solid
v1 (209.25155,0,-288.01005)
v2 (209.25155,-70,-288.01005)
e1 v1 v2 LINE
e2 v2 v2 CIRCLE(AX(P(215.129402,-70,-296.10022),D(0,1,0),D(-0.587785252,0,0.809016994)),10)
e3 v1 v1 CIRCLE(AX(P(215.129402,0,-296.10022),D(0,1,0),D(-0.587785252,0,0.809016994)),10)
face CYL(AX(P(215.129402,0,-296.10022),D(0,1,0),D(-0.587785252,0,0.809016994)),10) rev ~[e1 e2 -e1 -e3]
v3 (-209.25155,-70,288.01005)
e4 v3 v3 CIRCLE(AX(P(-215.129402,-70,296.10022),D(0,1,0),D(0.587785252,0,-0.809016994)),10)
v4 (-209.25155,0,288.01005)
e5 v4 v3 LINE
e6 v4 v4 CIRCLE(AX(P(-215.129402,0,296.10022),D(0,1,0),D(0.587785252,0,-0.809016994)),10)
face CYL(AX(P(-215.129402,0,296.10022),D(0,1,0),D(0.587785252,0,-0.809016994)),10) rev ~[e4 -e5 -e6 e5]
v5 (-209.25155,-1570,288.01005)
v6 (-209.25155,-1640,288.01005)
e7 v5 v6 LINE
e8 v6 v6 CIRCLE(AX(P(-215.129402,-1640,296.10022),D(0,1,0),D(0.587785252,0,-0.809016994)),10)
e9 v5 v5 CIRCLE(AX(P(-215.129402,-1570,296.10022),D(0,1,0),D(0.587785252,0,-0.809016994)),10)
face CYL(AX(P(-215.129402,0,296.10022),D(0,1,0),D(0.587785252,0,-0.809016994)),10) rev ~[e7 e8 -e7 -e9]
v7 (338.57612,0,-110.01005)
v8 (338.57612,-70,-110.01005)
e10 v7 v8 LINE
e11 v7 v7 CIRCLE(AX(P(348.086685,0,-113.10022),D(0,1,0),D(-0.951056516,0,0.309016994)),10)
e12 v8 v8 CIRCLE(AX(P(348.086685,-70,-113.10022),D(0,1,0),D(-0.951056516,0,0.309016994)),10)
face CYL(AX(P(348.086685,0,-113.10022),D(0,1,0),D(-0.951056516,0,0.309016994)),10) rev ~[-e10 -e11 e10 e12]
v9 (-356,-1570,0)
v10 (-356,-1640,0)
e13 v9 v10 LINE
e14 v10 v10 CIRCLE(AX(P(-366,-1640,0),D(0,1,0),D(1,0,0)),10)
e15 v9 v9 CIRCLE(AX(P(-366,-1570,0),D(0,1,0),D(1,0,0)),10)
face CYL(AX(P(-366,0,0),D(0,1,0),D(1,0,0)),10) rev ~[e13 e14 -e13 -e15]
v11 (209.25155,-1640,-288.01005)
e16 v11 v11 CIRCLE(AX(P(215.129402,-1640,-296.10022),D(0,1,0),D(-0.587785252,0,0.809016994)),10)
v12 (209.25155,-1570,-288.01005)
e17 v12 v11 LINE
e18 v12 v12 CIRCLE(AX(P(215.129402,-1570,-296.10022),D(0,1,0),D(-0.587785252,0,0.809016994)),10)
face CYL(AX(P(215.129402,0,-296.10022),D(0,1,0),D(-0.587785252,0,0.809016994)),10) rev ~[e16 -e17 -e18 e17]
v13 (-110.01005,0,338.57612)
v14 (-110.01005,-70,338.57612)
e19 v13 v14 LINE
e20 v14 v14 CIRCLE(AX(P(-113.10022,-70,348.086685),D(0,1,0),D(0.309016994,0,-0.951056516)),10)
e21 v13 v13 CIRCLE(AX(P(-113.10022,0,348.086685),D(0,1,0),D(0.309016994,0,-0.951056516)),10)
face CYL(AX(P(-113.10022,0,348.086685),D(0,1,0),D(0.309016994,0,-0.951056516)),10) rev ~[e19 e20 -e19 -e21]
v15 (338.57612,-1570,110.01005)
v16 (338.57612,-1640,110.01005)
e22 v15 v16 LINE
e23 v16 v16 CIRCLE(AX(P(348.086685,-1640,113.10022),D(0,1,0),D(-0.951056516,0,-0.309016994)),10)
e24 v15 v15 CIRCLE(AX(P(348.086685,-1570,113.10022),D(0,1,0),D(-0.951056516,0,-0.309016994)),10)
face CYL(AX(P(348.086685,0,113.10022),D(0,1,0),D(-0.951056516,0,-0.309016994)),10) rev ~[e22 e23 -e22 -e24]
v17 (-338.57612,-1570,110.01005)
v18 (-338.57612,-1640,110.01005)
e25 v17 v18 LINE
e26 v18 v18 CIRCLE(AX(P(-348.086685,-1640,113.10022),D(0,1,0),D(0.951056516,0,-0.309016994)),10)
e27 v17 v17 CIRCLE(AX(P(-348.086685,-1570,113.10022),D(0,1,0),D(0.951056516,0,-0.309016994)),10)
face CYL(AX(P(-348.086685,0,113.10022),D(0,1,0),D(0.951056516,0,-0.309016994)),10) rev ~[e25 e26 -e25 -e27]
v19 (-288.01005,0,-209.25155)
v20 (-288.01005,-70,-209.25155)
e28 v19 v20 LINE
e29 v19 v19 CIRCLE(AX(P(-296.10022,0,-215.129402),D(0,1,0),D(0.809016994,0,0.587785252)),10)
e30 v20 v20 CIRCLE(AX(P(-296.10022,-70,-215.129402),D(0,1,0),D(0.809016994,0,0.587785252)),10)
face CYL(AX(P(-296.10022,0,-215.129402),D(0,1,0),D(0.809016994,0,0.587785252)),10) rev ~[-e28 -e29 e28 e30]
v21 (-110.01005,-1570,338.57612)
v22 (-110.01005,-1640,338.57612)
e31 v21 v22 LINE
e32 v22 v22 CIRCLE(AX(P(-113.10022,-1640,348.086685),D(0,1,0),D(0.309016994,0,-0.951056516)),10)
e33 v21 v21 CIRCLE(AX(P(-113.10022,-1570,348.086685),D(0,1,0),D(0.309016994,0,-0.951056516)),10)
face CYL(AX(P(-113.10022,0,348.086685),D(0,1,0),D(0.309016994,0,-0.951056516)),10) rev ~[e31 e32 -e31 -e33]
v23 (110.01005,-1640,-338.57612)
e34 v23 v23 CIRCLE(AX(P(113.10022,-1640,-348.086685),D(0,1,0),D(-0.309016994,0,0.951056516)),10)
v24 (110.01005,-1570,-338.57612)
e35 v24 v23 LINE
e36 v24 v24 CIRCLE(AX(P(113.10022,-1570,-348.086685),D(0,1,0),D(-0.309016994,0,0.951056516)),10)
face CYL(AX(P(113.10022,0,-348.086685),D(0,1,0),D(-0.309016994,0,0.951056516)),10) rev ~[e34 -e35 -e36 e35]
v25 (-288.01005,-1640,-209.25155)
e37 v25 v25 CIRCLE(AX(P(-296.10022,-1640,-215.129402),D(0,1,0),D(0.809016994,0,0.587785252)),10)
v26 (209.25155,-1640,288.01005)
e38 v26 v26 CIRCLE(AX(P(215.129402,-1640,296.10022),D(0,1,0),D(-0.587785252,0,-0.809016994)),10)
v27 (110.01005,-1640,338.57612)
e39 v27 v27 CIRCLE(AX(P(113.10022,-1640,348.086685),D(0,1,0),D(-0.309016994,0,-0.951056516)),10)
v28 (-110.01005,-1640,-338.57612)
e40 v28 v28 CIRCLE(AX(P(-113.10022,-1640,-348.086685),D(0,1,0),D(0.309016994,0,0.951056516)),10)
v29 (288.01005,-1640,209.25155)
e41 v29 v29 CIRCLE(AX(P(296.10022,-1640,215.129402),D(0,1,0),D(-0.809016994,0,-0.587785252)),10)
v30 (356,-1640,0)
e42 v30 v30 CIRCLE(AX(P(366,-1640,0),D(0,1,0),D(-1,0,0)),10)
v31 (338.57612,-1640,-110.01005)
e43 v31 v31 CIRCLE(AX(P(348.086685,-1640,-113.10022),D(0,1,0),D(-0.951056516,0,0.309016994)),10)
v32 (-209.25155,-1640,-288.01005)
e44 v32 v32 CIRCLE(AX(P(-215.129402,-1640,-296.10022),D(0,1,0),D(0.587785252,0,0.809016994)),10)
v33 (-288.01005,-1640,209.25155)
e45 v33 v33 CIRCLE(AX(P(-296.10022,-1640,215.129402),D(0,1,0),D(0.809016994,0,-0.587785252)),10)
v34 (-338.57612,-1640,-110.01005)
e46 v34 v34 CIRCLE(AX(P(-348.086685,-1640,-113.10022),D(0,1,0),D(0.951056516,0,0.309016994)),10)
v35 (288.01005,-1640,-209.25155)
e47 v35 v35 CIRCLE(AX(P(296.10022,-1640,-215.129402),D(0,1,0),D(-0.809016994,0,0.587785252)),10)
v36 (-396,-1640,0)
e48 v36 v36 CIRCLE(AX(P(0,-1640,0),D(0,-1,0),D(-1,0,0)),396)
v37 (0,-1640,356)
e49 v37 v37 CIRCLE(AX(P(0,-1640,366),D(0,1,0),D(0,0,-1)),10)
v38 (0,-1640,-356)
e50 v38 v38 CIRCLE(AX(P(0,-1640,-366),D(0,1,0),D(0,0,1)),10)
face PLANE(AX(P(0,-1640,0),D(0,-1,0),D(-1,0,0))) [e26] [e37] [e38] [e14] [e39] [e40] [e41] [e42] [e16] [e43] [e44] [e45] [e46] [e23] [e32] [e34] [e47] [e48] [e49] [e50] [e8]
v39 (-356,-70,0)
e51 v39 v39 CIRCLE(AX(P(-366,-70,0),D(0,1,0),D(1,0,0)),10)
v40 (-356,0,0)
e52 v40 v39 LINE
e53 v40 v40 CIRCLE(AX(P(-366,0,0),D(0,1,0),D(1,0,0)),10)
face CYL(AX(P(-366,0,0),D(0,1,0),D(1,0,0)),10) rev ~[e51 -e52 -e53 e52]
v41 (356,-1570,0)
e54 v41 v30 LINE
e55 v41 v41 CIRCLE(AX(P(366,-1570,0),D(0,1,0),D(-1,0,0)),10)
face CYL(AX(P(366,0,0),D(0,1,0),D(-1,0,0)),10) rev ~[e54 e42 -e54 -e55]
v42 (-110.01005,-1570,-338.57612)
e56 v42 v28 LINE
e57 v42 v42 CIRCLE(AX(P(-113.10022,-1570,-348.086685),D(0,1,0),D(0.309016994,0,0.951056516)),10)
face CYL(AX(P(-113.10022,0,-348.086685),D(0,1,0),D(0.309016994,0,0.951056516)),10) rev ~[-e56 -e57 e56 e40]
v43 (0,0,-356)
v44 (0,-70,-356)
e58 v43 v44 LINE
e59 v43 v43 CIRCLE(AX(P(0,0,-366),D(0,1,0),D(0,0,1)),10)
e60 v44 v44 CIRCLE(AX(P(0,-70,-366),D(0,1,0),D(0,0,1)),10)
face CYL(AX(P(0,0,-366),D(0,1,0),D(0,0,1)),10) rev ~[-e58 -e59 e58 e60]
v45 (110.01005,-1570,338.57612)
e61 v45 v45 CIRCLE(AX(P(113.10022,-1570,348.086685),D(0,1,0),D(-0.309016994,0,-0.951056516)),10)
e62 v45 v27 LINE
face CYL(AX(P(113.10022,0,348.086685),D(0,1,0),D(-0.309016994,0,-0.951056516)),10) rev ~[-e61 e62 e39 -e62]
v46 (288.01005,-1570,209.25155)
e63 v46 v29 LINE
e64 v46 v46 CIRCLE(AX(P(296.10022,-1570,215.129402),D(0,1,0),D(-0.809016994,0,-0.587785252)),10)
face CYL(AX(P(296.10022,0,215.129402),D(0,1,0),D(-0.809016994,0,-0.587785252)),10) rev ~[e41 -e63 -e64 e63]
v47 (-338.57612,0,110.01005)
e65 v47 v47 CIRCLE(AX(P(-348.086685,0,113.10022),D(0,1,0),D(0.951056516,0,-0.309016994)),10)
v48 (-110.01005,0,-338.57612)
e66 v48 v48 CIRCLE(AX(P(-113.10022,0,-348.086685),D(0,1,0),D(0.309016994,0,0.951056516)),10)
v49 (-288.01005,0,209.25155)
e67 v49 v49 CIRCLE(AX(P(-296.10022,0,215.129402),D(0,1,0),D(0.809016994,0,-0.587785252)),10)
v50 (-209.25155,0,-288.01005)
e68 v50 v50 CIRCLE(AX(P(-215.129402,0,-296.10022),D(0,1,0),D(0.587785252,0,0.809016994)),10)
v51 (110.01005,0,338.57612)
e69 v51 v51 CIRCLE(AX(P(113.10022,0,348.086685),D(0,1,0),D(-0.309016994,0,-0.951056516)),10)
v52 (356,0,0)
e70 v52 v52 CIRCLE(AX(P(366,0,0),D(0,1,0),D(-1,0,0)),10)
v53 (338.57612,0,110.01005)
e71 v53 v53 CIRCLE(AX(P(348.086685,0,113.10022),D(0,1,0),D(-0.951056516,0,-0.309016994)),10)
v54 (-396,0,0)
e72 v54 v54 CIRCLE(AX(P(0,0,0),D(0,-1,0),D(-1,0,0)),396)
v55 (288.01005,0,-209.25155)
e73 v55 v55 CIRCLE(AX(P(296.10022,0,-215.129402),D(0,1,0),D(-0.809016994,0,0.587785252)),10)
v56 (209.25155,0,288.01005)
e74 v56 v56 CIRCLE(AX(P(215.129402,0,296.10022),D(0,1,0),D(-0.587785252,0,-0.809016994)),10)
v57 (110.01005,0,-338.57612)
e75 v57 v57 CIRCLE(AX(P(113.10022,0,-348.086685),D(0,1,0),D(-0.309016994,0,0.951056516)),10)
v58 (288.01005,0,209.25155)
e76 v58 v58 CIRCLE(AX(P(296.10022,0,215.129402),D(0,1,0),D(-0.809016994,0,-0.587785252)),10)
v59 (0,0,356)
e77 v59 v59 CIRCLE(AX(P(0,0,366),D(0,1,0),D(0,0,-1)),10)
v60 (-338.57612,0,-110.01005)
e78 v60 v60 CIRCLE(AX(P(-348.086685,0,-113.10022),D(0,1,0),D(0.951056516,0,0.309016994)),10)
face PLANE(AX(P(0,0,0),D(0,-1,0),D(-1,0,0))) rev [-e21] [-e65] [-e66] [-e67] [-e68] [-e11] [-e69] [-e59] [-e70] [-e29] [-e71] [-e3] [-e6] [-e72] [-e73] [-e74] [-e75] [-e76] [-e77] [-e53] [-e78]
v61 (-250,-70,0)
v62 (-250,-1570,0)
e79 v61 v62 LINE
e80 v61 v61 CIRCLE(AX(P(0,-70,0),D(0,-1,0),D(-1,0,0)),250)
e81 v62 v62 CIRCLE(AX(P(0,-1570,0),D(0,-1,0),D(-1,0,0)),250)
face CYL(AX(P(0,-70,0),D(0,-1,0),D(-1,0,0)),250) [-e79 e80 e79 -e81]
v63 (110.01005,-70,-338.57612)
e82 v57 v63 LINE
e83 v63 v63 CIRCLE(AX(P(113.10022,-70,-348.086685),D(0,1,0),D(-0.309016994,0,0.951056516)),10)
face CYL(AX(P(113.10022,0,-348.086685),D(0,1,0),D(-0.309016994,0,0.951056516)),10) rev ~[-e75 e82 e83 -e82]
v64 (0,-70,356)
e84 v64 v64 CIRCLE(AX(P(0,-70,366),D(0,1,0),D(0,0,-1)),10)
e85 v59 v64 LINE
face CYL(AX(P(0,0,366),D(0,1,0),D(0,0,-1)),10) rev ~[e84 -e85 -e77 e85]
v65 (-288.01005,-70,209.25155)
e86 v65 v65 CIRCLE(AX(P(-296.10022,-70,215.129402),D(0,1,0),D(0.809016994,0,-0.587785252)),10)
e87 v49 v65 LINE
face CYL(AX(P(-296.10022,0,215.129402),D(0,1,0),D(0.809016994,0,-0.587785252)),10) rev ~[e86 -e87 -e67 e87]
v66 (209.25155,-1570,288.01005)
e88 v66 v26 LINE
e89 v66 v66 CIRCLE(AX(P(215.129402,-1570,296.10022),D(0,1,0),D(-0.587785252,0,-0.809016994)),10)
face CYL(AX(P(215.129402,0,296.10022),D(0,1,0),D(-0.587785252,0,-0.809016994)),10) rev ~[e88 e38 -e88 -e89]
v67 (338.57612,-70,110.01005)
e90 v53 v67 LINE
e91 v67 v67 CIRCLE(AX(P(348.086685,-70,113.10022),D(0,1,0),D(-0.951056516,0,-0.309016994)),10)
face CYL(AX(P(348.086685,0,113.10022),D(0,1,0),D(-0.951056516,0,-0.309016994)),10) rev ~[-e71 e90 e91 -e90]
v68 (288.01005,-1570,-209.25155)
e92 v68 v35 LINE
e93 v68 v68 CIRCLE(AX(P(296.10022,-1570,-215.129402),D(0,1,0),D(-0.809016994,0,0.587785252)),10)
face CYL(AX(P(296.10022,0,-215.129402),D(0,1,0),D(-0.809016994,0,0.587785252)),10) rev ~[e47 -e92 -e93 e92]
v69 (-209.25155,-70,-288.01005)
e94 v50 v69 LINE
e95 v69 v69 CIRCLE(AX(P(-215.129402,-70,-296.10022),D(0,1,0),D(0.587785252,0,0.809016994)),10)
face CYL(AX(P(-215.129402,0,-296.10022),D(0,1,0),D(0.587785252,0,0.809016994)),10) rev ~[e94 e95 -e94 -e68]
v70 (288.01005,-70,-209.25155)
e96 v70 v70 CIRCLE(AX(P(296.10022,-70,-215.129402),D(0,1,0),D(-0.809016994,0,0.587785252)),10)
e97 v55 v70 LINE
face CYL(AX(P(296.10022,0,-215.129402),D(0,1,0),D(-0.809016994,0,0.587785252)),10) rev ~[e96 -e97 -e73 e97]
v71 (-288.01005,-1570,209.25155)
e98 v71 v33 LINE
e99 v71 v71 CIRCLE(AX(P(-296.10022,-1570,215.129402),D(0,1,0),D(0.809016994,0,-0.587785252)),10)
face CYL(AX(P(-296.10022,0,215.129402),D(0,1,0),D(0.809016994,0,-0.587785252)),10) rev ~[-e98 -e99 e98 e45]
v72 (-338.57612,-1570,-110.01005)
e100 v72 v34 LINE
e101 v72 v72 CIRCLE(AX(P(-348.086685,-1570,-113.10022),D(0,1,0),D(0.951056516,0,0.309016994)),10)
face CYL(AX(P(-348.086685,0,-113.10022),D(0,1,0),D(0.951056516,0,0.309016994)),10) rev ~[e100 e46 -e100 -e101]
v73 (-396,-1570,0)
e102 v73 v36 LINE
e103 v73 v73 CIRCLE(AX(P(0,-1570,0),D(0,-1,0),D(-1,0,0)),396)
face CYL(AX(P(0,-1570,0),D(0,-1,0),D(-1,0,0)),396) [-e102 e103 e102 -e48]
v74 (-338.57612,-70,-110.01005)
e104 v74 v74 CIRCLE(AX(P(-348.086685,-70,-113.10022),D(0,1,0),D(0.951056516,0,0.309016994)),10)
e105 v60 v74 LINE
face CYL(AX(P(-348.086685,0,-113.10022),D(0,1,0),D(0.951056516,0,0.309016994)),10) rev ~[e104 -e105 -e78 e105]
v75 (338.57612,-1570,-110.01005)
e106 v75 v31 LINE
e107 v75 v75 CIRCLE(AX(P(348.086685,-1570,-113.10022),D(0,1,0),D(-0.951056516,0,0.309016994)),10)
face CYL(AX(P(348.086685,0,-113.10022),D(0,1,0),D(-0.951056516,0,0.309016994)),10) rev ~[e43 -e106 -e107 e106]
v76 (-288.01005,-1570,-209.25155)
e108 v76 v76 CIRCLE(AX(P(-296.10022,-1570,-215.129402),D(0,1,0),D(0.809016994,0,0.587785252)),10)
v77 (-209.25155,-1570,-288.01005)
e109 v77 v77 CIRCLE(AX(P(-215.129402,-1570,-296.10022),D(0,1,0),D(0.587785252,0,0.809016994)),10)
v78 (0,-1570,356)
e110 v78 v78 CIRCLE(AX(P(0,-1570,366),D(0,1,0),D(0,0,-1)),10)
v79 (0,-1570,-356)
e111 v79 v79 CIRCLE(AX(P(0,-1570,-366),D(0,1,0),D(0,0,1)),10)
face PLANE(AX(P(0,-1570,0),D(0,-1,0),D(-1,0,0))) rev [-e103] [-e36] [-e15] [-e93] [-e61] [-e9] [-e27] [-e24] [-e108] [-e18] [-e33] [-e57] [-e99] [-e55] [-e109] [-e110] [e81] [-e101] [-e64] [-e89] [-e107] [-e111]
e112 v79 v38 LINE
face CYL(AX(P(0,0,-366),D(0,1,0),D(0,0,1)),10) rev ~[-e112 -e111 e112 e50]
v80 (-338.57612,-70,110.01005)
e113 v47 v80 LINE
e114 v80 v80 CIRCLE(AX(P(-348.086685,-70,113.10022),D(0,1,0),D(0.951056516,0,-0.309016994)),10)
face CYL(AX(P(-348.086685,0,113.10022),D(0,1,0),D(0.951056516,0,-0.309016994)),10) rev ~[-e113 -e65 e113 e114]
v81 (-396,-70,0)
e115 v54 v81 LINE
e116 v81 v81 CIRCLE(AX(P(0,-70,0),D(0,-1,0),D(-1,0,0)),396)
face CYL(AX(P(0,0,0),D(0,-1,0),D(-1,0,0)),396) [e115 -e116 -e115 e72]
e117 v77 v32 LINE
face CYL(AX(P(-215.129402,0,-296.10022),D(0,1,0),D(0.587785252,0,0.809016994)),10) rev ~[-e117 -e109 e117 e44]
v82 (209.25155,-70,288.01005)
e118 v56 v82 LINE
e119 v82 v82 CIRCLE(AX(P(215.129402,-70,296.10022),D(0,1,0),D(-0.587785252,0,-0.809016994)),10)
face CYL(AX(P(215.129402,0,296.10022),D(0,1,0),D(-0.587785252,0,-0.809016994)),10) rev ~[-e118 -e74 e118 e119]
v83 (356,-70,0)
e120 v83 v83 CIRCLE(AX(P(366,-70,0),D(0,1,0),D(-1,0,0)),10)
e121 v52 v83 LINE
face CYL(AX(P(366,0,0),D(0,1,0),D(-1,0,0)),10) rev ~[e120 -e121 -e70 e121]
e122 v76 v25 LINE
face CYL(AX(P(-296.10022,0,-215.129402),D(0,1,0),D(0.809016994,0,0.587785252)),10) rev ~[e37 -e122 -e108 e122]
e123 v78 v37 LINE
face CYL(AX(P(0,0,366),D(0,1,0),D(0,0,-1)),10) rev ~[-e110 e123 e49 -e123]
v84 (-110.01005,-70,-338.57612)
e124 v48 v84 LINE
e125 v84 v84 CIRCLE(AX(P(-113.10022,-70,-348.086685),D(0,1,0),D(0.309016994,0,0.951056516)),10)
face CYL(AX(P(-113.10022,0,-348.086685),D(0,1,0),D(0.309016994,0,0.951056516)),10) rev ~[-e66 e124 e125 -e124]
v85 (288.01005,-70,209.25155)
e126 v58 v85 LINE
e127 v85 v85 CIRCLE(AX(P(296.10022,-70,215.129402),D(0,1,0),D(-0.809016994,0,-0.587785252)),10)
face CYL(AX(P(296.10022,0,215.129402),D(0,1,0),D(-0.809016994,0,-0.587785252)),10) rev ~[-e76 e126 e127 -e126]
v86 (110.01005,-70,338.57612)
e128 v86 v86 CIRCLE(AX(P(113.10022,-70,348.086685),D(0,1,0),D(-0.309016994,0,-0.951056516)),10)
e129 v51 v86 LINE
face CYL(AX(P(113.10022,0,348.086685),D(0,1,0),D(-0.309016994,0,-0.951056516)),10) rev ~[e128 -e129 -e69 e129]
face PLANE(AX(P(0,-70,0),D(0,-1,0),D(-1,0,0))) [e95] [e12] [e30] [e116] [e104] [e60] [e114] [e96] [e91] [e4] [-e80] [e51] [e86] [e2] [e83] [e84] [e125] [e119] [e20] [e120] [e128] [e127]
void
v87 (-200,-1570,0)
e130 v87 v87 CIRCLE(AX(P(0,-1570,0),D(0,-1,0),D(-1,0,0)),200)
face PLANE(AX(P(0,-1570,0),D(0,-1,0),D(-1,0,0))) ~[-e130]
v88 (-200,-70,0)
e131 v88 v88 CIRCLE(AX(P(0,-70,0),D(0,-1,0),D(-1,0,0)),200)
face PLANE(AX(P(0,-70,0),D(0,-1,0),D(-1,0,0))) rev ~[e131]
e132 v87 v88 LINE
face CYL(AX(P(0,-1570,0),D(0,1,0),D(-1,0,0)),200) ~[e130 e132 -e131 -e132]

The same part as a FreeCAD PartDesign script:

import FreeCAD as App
import Part
import Sketcher

doc = App.newDocument("Part")
body = doc.addObject("PartDesign::Body", "Body")

sketch1 = body.newObject("Sketcher::SketchObject", "Sketch")
sketch1.AttachmentSupport = (doc.getObject("XY_Plane"), [""])
sketch1.MapMode = "FlatFace"
sketch1.addGeometry(Part.LineSegment(App.Vector(396, 0, 0), App.Vector(0, 0, 0)), False)
sketch1.addGeometry(Part.LineSegment(App.Vector(0, 0, 0), App.Vector(0, -70, 0)), False)
sketch1.addGeometry(Part.LineSegment(App.Vector(0, -70, 0), App.Vector(200, -70, 0)), False)
sketch1.addGeometry(Part.LineSegment(App.Vector(200, -70, 0), App.Vector(200, -1570, 0)), False)
sketch1.addGeometry(Part.LineSegment(App.Vector(200, -1570, 0), App.Vector(0, -1570, 0)), False)
sketch1.addGeometry(Part.LineSegment(App.Vector(0, -1570, 0), App.Vector(0, -1640, 0)), False)
sketch1.addGeometry(Part.LineSegment(App.Vector(0, -1640, 0), App.Vector(396, -1640, 0)), False)
sketch1.addGeometry(Part.LineSegment(App.Vector(396, -1640, 0), App.Vector(396, -1570, 0)), False)
sketch1.addGeometry(Part.LineSegment(App.Vector(396, -1570, 0), App.Vector(250, -1570, 0)), False)
sketch1.addGeometry(Part.LineSegment(App.Vector(250, -1570, 0), App.Vector(250, -70, 0)), False)
sketch1.addGeometry(Part.LineSegment(App.Vector(250, -70, 0), App.Vector(396, -70, 0)), False)
sketch1.addGeometry(Part.LineSegment(App.Vector(396, -70, 0), App.Vector(396, 0, 0)), False)
sketch1.addConstraint(Sketcher.Constraint("Coincident", 0, 2, 1, 1))
sketch1.addConstraint(Sketcher.Constraint("Coincident", 1, 2, 2, 1))
sketch1.addConstraint(Sketcher.Constraint("Coincident", 2, 2, 3, 1))
sketch1.addConstraint(Sketcher.Constraint("Coincident", 3, 2, 4, 1))
sketch1.addConstraint(Sketcher.Constraint("Coincident", 4, 2, 5, 1))
sketch1.addConstraint(Sketcher.Constraint("Coincident", 5, 2, 6, 1))
sketch1.addConstraint(Sketcher.Constraint("Coincident", 6, 2, 7, 1))
sketch1.addConstraint(Sketcher.Constraint("Coincident", 7, 2, 8, 1))
sketch1.addConstraint(Sketcher.Constraint("Coincident", 8, 2, 9, 1))
sketch1.addConstraint(Sketcher.Constraint("Coincident", 9, 2, 10, 1))
sketch1.addConstraint(Sketcher.Constraint("Coincident", 10, 2, 11, 1))
sketch1.addConstraint(Sketcher.Constraint("Coincident", 11, 2, 0, 1))
sketch1.addConstraint(Sketcher.Constraint("Horizontal", 0))
sketch1.addConstraint(Sketcher.Constraint("Vertical", 1))
sketch1.addConstraint(Sketcher.Constraint("Horizontal", 2))
sketch1.addConstraint(Sketcher.Constraint("Vertical", 3))
sketch1.addConstraint(Sketcher.Constraint("Horizontal", 4))
sketch1.addConstraint(Sketcher.Constraint("Vertical", 5))
sketch1.addConstraint(Sketcher.Constraint("Horizontal", 6))
sketch1.addConstraint(Sketcher.Constraint("Vertical", 7))
sketch1.addConstraint(Sketcher.Constraint("Horizontal", 8))
sketch1.addConstraint(Sketcher.Constraint("Vertical", 9))
sketch1.addConstraint(Sketcher.Constraint("Horizontal", 10))
sketch1.addConstraint(Sketcher.Constraint("Vertical", 11))
sketch1.addConstraint(Sketcher.Constraint("Coincident", 0, 2, -1, 1))
sketch1.addConstraint(Sketcher.Constraint("PointOnObject", 4, 2, -2))
sketch1.addConstraint(Sketcher.Constraint("Horizontal", 4, 2, 7, 2))
sketch1.addConstraint(Sketcher.Constraint("Horizontal", 2, 2, 9, 2))
sketch1.addConstraint(Sketcher.Constraint("Vertical", 7, 2, 10, 2))
sketch1.addConstraint(Sketcher.Constraint("Equal", 1, 5))
sketch1.addConstraint(Sketcher.Constraint("DistanceX", 0, 2, 0, 1, 396.0))
sketch1.addConstraint(Sketcher.Constraint("DistanceX", 2, 1, 2, 2, 200.0))
sketch1.addConstraint(Sketcher.Constraint("DistanceX", 8, 2, 8, 1, 146.0))
sketch1.addConstraint(Sketcher.Constraint("DistanceY", 1, 2, 1, 1, 70.0))
sketch1.addConstraint(Sketcher.Constraint("DistanceY", 3, 2, 3, 1, 1500.0))
revolution = body.newObject("PartDesign::Revolution", "Revolution")
revolution.Profile = sketch1
revolution.ReferenceAxis = (sketch1, ["V_Axis"])
revolution.Angle = 360

sketch2 = body.newObject("Sketcher::SketchObject", "Sketch001")
sketch2.AttachmentSupport = (doc.getObject("XZ_Plane"), [""])
sketch2.MapMode = "FlatFace"
sketch2.addGeometry(Part.Circle(App.Vector(366, 0, 0), App.Vector(0, 0, 1), 10), False)
sketch2.addConstraint(Sketcher.Constraint("PointOnObject", 0, 3, -1))
sketch2.addConstraint(Sketcher.Constraint("Diameter", 0, 20.0))
sketch2.addConstraint(Sketcher.Constraint("DistanceX", -1, 1, 0, 3, 366.0))
pocket1 = body.newObject("PartDesign::Pocket", "Pocket")
pocket1.Profile = sketch2
pocket1.Type = "ThroughAll"
pocket1.Reversed = True
doc.recompute()

polarpattern = body.newObject("PartDesign::PolarPattern", "PolarPattern")
polarpattern.Originals = [pocket1]
polarpattern.Axis = (doc.getObject("Y_Axis"), [""])
polarpattern.Angle = 360
polarpattern.Occurrences = 20
body.Tip = polarpattern

doc.recompute()
